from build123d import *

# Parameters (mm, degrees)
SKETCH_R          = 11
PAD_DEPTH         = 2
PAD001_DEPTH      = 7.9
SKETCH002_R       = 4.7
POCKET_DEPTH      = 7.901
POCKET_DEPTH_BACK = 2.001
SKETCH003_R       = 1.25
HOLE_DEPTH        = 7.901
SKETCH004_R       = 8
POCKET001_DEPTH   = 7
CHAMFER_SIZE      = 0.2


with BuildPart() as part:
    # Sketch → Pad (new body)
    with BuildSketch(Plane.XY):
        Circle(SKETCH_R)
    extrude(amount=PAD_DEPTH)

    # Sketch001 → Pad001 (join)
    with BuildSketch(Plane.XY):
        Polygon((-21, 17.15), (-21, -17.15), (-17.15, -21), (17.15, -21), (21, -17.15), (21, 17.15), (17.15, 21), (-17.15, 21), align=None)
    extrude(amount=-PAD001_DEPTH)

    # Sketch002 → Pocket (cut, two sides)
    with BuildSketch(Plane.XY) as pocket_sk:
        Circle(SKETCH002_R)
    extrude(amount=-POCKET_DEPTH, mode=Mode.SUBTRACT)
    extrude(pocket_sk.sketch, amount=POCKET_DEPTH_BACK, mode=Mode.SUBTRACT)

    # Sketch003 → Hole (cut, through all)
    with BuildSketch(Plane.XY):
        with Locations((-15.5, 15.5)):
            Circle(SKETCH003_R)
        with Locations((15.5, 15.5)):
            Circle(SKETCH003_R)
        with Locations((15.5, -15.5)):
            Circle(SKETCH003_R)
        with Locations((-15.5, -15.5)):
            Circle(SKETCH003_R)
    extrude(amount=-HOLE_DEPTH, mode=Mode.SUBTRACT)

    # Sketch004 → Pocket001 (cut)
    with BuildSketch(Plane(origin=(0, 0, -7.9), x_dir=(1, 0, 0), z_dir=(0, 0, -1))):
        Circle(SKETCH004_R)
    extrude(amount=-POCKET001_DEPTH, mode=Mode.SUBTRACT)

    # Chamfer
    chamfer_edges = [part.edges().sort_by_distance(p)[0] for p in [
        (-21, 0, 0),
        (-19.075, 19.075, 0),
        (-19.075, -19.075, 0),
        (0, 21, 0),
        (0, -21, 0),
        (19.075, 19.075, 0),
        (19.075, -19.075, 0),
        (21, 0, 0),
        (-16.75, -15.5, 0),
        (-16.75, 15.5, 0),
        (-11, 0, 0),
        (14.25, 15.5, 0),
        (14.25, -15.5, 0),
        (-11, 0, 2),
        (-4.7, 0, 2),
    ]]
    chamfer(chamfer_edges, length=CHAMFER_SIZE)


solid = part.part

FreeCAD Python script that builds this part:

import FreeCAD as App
import Part
import Sketcher
from FreeCAD import Vector
Q = App.Units.Quantity


def edges_at(feature, points):
    """Names of the edges that pass closest to the given points."""
    edges = feature.Shape.Edges
    near = lambda p: min(range(len(edges)), key=lambda i: edges[i].distToShape(Part.Vertex(*p))[0])
    return sorted({f"Edge{near(p) + 1}" for p in points})


def add_polygon(sketch, points):
    """Adds a closed chain of lines whose ends are joined by coincident constraints."""
    first, n = sketch.GeometryCount, len(points)
    for a, b in zip(points, points[1:] + points[:1]):
        sketch.addGeometry(Part.LineSegment(App.Vector(*a, 0), App.Vector(*b, 0)), False)
    for i in range(n):
        sketch.addConstraint(Sketcher.Constraint("Coincident", first + i, 2, first + (i + 1) % n, 1))

doc = App.newDocument("Part")
body = doc.addObject("PartDesign::Body", "Body")

# Sketch on XY plane
sketch1 = body.newObject("Sketcher::SketchObject", "Sketch")
sketch1.AttachmentSupport = (doc.getObject("XY_Plane"), [""])
sketch1.MapMode = "FlatFace"
sketch1.addGeometry(Part.Circle(Vector(0, 0, 0), Vector(0, 0, 1), 11), False)
sketch1.addConstraint(Sketcher.Constraint("Coincident", 0, 3, -1, 1))
sketch1.addConstraint(Sketcher.Constraint("Diameter", 0, Q("22 mm")))
pad1 = body.newObject("PartDesign::Pad", "Pad")
pad1.Profile = sketch1
pad1.Length = 2

# Sketch on XY plane
sketch2 = body.newObject("Sketcher::SketchObject", "Sketch001")
sketch2.AttachmentSupport = (doc.getObject("XY_Plane"), [""])
sketch2.MapMode = "FlatFace"
add_polygon(sketch2, [(-21, 17.15), (-21, -17.15), (-17.15, -21), (17.15, -21), (21, -17.15), (21, 17.15), (17.15, 21), (-17.15, 21)])  # lines 0-7
sketch2.addConstraint(Sketcher.Constraint("Vertical", 0))
sketch2.addConstraint(Sketcher.Constraint("Horizontal", 2))
sketch2.addConstraint(Sketcher.Constraint("Vertical", 4))
sketch2.addConstraint(Sketcher.Constraint("Horizontal", 6))
sketch2.addConstraint(Sketcher.Constraint("Symmetric", 0, 2, 4, 2, -1, 1))
sketch2.addConstraint(Sketcher.Constraint("Symmetric", 1, 2, 5, 2, -1, 1))
sketch2.addConstraint(Sketcher.Constraint("Perpendicular", 1, 3))
sketch2.addConstraint(Sketcher.Constraint("Perpendicular", 5, 7))
sketch2.addConstraint(Sketcher.Constraint("Horizontal", 0, 2, 3, 2))
sketch2.addConstraint(Sketcher.Constraint("Horizontal", 4, 2, 7, 2))
sketch2.addConstraint(Sketcher.Constraint("Vertical", 2, 2, 5, 2))
sketch2.addConstraint(Sketcher.Constraint("Equal", 6, 0))
sketch2.addConstraint(Sketcher.Constraint("DistanceX", 2, 1, 2, 2, Q("34.3 mm")))
sketch2.addConstraint(Sketcher.Constraint("DistanceX", 0, 2, -1, 1, Q("21 mm")))
pad2 = body.newObject("PartDesign::Pad", "Pad001")
pad2.Profile = sketch2
pad2.Length = 7.9
pad2.Reversed = True

# Sketch on XY plane
sketch3 = body.newObject("Sketcher::SketchObject", "Sketch002")
sketch3.AttachmentSupport = (doc.getObject("XY_Plane"), [""])
sketch3.MapMode = "FlatFace"
sketch3.addGeometry(Part.Circle(Vector(0, 0, 0), Vector(0, 0, 1), 4.7), False)
sketch3.addConstraint(Sketcher.Constraint("Coincident", 0, 3, -1, 1))
sketch3.addConstraint(Sketcher.Constraint("Diameter", 0, Q("9.4 mm")))
pocket1 = body.newObject("PartDesign::Pocket", "Pocket")
pocket1.Profile = sketch3
pocket1.Type = "ThroughAll"
pocket1.Midplane = True

# Sketch on XY plane
sketch4 = body.newObject("Sketcher::SketchObject", "Sketch003")
sketch4.AttachmentSupport = (doc.getObject("XY_Plane"), [""])
sketch4.MapMode = "FlatFace"
sketch4.addGeometry(Part.Circle(Vector(-15.5, 15.5, 0), Vector(0, 0, 1), 1.25), False)
sketch4.addGeometry(Part.Circle(Vector(15.5, 15.5, 0), Vector(0, 0, 1), 1.25), False)
sketch4.addGeometry(Part.Circle(Vector(15.5, -15.5, 0), Vector(0, 0, 1), 1.25), False)
sketch4.addGeometry(Part.Circle(Vector(-15.5, -15.5, 0), Vector(0, 0, 1), 1.25), False)
sketch4.addConstraint(Sketcher.Constraint("Equal", 0, 1))
sketch4.addConstraint(Sketcher.Constraint("Equal", 1, 2))
sketch4.addConstraint(Sketcher.Constraint("Equal", 2, 3))
sketch4.addConstraint(Sketcher.Constraint("Symmetric", 0, 3, 2, 3, -1, 1))
sketch4.addConstraint(Sketcher.Constraint("Symmetric", 1, 3, 3, 3, -1, 1))
sketch4.addConstraint(Sketcher.Constraint("Symmetric", 0, 3, 1, 3, -2))
sketch4.addConstraint(Sketcher.Constraint("Diameter", 0, Q("2.5 mm")))
sketch4.addConstraint(Sketcher.Constraint("DistanceX", 0, 3, 1, 3, Q("31 mm")))
sketch4.addConstraint(Sketcher.Constraint("DistanceY", 2, 3, 1, 3, Q("31 mm")))
pocket2 = body.newObject("PartDesign::Pocket", "Pocket001")
pocket2.Profile = sketch4
pocket2.Type = "ThroughAll"

# Sketch on XY plane
sketch5 = body.newObject("Sketcher::SketchObject", "Sketch004")
sketch5.AttachmentSupport = (doc.getObject("XY_Plane"), [""])
sketch5.MapMode = "FlatFace"
sketch5.AttachmentOffset = App.Placement(Vector(0, 0, -7.9), App.Rotation())
sketch5.addGeometry(Part.Circle(Vector(0, 0, 0), Vector(0, 0, 1), 8), False)
sketch5.addConstraint(Sketcher.Constraint("Coincident", 0, 3, -1, 1))
sketch5.addConstraint(Sketcher.Constraint("Diameter", 0, Q("16 mm")))
pocket3 = body.newObject("PartDesign::Pocket", "Pocket002")
pocket3.Profile = sketch5
pocket3.Length = 7
pocket3.Reversed = True
doc.recompute()

chamfer = body.newObject("PartDesign::Chamfer", "Chamfer")
chamfer.Base = (pocket3, edges_at(pocket3, [
    (-21, 0, 0),
    (-19.075, 19.075, 0),
    (-19.075, -19.075, 0),
    (0, 21, 0),
    (0, -21, 0),
    (19.075, 19.075, 0),
    (19.075, -19.075, 0),
    (21, 0, 0),
    (-16.75, -15.5, 0),
    (-16.75, 15.5, 0),
    (-11, 0, 0),
    (14.25, 15.5, 0),
    (14.25, -15.5, 0),
    (-11, 0, 2),
    (-4.7, 0, 2),
]))
chamfer.Size = 0.2

doc.recompute()
